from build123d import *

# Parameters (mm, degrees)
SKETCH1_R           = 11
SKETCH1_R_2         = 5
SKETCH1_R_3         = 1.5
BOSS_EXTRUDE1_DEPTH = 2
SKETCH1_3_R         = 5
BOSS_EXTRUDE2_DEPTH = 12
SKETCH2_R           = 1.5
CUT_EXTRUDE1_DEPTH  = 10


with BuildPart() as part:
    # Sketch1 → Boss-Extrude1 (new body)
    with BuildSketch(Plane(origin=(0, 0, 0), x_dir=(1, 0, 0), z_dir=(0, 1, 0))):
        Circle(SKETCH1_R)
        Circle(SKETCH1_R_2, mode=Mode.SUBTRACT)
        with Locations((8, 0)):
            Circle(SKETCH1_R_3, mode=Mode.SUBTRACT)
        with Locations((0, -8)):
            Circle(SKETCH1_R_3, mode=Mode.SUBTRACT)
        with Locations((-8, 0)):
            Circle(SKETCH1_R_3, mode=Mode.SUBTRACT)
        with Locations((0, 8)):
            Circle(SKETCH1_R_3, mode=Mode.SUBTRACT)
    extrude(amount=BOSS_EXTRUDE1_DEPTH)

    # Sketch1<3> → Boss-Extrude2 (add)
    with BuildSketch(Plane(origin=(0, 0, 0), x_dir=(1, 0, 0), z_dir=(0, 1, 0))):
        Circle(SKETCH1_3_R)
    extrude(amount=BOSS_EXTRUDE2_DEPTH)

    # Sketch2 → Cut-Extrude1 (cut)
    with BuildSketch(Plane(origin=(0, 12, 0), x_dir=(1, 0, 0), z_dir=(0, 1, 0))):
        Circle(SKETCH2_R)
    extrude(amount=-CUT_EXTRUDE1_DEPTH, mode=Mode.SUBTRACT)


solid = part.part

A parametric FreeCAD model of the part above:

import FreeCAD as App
import Part
import Sketcher
Q = App.Units.Quantity

doc = App.newDocument("Part")
params = doc.addObject("Spreadsheet::Sheet", "Params")
for row, (alias, value) in enumerate([
    ("sketch1_diameter", "22 mm"),
    ("sketch1_diameter2", "3 mm"),
    ("sketch1_diameter3", "10 mm"),
    ("pad1_length", "2 mm"),
    ("sketch2_diameter", "10 mm"),
    ("pad2_length", "12 mm"),
    ("sketch3_diameter", "3 mm"),
    ("pocket1_length", "10 mm"),
], start=1):
    params.set(f"A{row}", alias)
    params.set(f"B{row}", "=" + value)
    params.setAlias(f"B{row}", alias)

body = doc.addObject("PartDesign::Body", "Body")

sketch1 = body.newObject("Sketcher::SketchObject", "Sketch")
sketch1.AttachmentSupport = (doc.getObject("XZ_Plane"), [""])
sketch1.MapMode = "FlatFace"
sketch1.addGeometry([
    Part.Circle(App.Vector(0, 0, 0), App.Vector(0, 0, 1), 11),
    Part.Circle(App.Vector(0, 8, 0), App.Vector(0, 0, 1), 1.5),
    Part.Circle(App.Vector(-8, 0, 0), App.Vector(0, 0, 1), 1.5),
    Part.Circle(App.Vector(0, 0, 0), App.Vector(0, 0, 1), 5),
    Part.Circle(App.Vector(8, 0, 0), App.Vector(0, 0, 1), 1.5),
    Part.Circle(App.Vector(0, -8, 0), App.Vector(0, 0, 1), 1.5),
], False)
sketch1.addConstraint([
    Sketcher.Constraint("Coincident", 0, 3, -1, 1),
    Sketcher.Constraint("Coincident", 3, 3, -1, 1),
    Sketcher.Constraint("Equal", 1, 2),
    Sketcher.Constraint("Equal", 2, 4),
    Sketcher.Constraint("Equal", 4, 5),
    Sketcher.Constraint("Symmetric", 2, 3, 4, 3, -1, 1),
    Sketcher.Constraint("Symmetric", 1, 3, 5, 3, -1, 1),
    Sketcher.Constraint("PointOnObject", 1, 3, -2),
    Sketcher.Constraint("PointOnObject", 2, 3, -1),
    Sketcher.Constraint("Diameter", 0, Q("22 mm")),
    Sketcher.Constraint("Diameter", 1, Q("3 mm")),
    Sketcher.Constraint("Diameter", 3, Q("10 mm")),
    Sketcher.Constraint("DistanceY", -1, 1, 1, 3, Q("8 mm")),
    Sketcher.Constraint("DistanceX", 2, 3, -1, 1, Q("8 mm")),
])
sketch1.setExpression("Constraints[9]", "Params.sketch1_diameter")
sketch1.setExpression("Constraints[10]", "Params.sketch1_diameter2")
sketch1.setExpression("Constraints[11]", "Params.sketch1_diameter3")
pad1 = body.newObject("PartDesign::Pad", "Pad")
pad1.Profile = sketch1
pad1.setExpression("Length", "Params.pad1_length")
pad1.Reversed = True

sketch2 = body.newObject("Sketcher::SketchObject", "Sketch001")
sketch2.AttachmentSupport = (doc.getObject("XZ_Plane"), [""])
sketch2.MapMode = "FlatFace"
sketch2.addGeometry(Part.Circle(App.Vector(0, 0, 0), App.Vector(0, 0, 1), 5), False)
sketch2.addConstraint([
    Sketcher.Constraint("Coincident", 0, 3, -1, 1),
    Sketcher.Constraint("Diameter", 0, Q("10 mm")),
])
sketch2.setExpression("Constraints[1]", "Params.sketch2_diameter")
pad2 = body.newObject("PartDesign::Pad", "Pad001")
pad2.Profile = sketch2
pad2.setExpression("Length", "Params.pad2_length")
pad2.Reversed = True

sketch3 = body.newObject("Sketcher::SketchObject", "Sketch002")
sketch3.AttachmentSupport = (doc.getObject("XZ_Plane"), [""])
sketch3.MapMode = "FlatFace"
sketch3.AttachmentOffset = App.Placement(App.Vector(0, 0, -12), App.Rotation())
sketch3.addGeometry(Part.Circle(App.Vector(0, 0, 0), App.Vector(0, 0, 1), 1.5), False)
sketch3.addConstraint([
    Sketcher.Constraint("Coincident", 0, 3, -1, 1),
    Sketcher.Constraint("Diameter", 0, Q("3 mm")),
])
sketch3.setExpression("Constraints[1]", "Params.sketch3_diameter")
pocket1 = body.newObject("PartDesign::Pocket", "Pocket")
pocket1.Profile = sketch3
pocket1.setExpression("Length", "Params.pocket1_length")
pocket1.Reversed = True

doc.recompute()
